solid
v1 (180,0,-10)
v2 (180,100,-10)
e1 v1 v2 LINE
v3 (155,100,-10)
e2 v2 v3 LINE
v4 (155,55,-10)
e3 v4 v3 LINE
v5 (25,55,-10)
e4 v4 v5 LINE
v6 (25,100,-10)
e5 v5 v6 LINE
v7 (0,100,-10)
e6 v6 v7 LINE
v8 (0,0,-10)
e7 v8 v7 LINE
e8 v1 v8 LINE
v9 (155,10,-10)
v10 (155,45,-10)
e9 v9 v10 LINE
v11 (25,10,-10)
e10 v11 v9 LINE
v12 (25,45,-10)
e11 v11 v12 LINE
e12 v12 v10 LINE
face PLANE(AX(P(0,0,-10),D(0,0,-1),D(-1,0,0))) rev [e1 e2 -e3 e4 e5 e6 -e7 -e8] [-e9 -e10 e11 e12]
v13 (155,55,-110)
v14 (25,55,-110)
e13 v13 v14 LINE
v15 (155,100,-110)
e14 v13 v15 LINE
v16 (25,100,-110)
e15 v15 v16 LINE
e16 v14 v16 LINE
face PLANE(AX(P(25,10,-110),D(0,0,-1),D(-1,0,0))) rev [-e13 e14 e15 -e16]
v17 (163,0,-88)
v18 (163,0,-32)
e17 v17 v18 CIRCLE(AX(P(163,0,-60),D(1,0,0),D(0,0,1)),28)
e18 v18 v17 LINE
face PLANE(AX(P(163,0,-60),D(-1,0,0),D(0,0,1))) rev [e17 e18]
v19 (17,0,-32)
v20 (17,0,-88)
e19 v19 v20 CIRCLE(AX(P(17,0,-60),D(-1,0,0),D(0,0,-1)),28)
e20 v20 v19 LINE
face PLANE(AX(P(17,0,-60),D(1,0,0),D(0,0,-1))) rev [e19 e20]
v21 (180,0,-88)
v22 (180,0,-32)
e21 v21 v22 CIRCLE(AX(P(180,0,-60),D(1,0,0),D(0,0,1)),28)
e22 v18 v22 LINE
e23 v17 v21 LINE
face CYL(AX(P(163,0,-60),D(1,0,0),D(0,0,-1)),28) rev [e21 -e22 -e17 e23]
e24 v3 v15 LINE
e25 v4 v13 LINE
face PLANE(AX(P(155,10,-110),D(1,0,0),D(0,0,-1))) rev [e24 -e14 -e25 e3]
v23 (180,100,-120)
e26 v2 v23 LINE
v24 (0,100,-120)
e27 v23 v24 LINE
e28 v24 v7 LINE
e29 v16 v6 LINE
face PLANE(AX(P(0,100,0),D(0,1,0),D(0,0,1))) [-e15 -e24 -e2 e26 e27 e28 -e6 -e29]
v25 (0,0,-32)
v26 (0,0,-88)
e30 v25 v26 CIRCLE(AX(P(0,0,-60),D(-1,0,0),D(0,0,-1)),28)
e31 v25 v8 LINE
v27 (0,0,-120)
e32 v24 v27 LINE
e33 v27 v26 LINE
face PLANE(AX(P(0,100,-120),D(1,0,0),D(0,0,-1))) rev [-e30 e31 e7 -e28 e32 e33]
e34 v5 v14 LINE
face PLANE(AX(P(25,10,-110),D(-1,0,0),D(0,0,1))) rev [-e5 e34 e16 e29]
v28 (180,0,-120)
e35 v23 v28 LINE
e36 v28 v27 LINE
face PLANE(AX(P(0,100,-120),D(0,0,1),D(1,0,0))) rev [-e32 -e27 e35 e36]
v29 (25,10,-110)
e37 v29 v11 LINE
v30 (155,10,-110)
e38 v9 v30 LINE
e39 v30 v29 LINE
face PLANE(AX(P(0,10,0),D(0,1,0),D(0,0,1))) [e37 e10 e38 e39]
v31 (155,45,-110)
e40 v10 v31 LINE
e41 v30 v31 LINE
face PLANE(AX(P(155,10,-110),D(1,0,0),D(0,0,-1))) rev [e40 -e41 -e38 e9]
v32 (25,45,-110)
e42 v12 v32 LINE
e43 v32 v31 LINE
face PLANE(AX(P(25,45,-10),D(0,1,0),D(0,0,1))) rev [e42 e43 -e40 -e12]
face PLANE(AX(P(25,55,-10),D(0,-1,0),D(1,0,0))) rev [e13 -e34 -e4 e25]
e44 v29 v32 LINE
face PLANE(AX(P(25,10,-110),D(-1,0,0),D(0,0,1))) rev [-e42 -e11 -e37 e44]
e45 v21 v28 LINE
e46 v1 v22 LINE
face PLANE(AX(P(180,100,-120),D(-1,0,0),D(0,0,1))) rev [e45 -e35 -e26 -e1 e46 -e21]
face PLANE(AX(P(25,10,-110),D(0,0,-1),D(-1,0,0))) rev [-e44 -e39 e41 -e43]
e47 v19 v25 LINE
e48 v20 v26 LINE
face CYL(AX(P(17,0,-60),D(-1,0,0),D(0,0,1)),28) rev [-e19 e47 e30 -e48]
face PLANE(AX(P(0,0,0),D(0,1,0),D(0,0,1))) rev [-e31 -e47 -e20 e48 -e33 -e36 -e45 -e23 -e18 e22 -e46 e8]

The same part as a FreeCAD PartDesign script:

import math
import FreeCAD as App
import Part
import Sketcher
from FreeCAD import Vector


def add_polygon(sketch, points):
    """Adds a closed chain of lines whose ends are joined by coincident constraints."""
    first, n = sketch.GeometryCount, len(points)
    for a, b in zip(points, points[1:] + points[:1]):
        sketch.addGeometry(Part.LineSegment(App.Vector(*a, 0), App.Vector(*b, 0)), False)
    for i in range(n):
        sketch.addConstraint(Sketcher.Constraint("Coincident", first + i, 2, first + (i + 1) % n, 1))

doc = App.newDocument("Part")
body = doc.addObject("PartDesign::Body", "Body")

# Sketch on XZ plane
sketch1 = body.newObject("Sketcher::SketchObject", "Sketch")
sketch1.AttachmentSupport = (doc.getObject("XZ_Plane"), [""])
sketch1.MapMode = "FlatFace"
add_polygon(sketch1, [(0, -120), (0, 0), (180, 0), (180, -120)])  # lines 0-3
sketch1.addConstraint(Sketcher.Constraint("Vertical", 0))
sketch1.addConstraint(Sketcher.Constraint("Horizontal", 1))
sketch1.addConstraint(Sketcher.Constraint("Vertical", 2))
sketch1.addConstraint(Sketcher.Constraint("Horizontal", 3))
sketch1.addConstraint(Sketcher.Constraint("Coincident", 0, 2, -1, 1))
sketch1.addConstraint(Sketcher.Constraint("DistanceX", 1, 1, 1, 2, 180.0))
sketch1.addConstraint(Sketcher.Constraint("DistanceY", 0, 1, 0, 2, 120.0))
pad1 = body.newObject("PartDesign::Pad", "Pad")
pad1.Profile = sketch1
pad1.Length = 100
pad1.Reversed = True

# Sketch on XZ plane
sketch2 = body.newObject("Sketcher::SketchObject", "Sketch001")
sketch2.AttachmentSupport = (doc.getObject("XZ_Plane"), [""])
sketch2.MapMode = "FlatFace"
sketch2.AttachmentOffset = App.Placement(Vector(0, 0, -100), App.Rotation())
add_polygon(sketch2, [(25, -110), (25, -10), (155, -10), (155, -110)])  # lines 0-3
sketch2.addConstraint(Sketcher.Constraint("Vertical", 0))
sketch2.addConstraint(Sketcher.Constraint("Horizontal", 1))
sketch2.addConstraint(Sketcher.Constraint("Vertical", 2))
sketch2.addConstraint(Sketcher.Constraint("Horizontal", 3))
sketch2.addConstraint(Sketcher.Constraint("DistanceX", 1, 1, 1, 2, 130.0))
sketch2.addConstraint(Sketcher.Constraint("DistanceY", 0, 1, 0, 2, 100.0))
sketch2.addConstraint(Sketcher.Constraint("DistanceX", -1, 1, 0, 2, 25.0))
sketch2.addConstraint(Sketcher.Constraint("DistanceY", 0, 2, -1, 1, 10.0))
pocket1 = body.newObject("PartDesign::Pocket", "Pocket")
pocket1.Profile = sketch2
pocket1.Length = 90
pocket1.Reversed = True

# Sketch on YZ plane
sketch3 = body.newObject("Sketcher::SketchObject", "Sketch002")
sketch3.AttachmentSupport = (doc.getObject("YZ_Plane"), [""])
sketch3.MapMode = "FlatFace"
sketch3.AttachmentOffset = App.Placement(Vector(0, 0, 180), App.Rotation())
sketch3.addGeometry(Part.LineSegment(Vector(0, -32, 0), Vector(0, -88, 0)), False)
sketch3.addGeometry(Part.ArcOfCircle(Part.Circle(Vector(0, -60, 0), Vector(0, 0, 1), 28), math.radians(-90), math.radians(90)), False)
sketch3.addConstraint(Sketcher.Constraint("Coincident", 0, 1, 1, 2))
sketch3.addConstraint(Sketcher.Constraint("Coincident", 1, 1, 0, 2))
sketch3.addConstraint(Sketcher.Constraint("Vertical", 0))
sketch3.addConstraint(Sketcher.Constraint("PointOnObject", 1, 3, -2))
sketch3.addConstraint(Sketcher.Constraint("PointOnObject", 0, 1, -2))
sketch3.addConstraint(Sketcher.Constraint("Radius", 1, 28.0))
sketch3.addConstraint(Sketcher.Constraint("DistanceY", 1, 3, -1, 1, 60.0))
pocket2 = body.newObject("PartDesign::Pocket", "Pocket001")
pocket2.Profile = sketch3
pocket2.Length = 17

# Sketch on YZ plane
sketch4 = body.newObject("Sketcher::SketchObject", "Sketch003")
sketch4.AttachmentSupport = (doc.getObject("YZ_Plane"), [""])
sketch4.MapMode = "FlatFace"
sketch4.addGeometry(Part.LineSegment(Vector(0, -88, 0), Vector(0, -32, 0)), False)
sketch4.addGeometry(Part.ArcOfCircle(Part.Circle(Vector(0, -60, 0), Vector(0, 0, 1), 28), math.radians(-90), math.radians(90)), False)
sketch4.addConstraint(Sketcher.Constraint("Coincident", 0, 1, 1, 1))
sketch4.addConstraint(Sketcher.Constraint("Coincident", 1, 2, 0, 2))
sketch4.addConstraint(Sketcher.Constraint("Vertical", 0))
sketch4.addConstraint(Sketcher.Constraint("PointOnObject", 1, 3, -2))
sketch4.addConstraint(Sketcher.Constraint("PointOnObject", 0, 1, -2))
sketch4.addConstraint(Sketcher.Constraint("Radius", 1, 28.0))
sketch4.addConstraint(Sketcher.Constraint("DistanceY", 1, 3, -1, 1, 60.0))
pocket3 = body.newObject("PartDesign::Pocket", "Pocket002")
pocket3.Profile = sketch4
pocket3.Length = 17
pocket3.Reversed = True

# Sketch on XZ plane
sketch5 = body.newObject("Sketcher::SketchObject", "Sketch004")
sketch5.AttachmentSupport = (doc.getObject("XZ_Plane"), [""])
sketch5.MapMode = "FlatFace"
add_polygon(sketch5, [(0, -10), (0, 0), (180, 0), (180, -10)])  # lines 0-3
sketch5.addConstraint(Sketcher.Constraint("Vertical", 0))
sketch5.addConstraint(Sketcher.Constraint("Horizontal", 1))
sketch5.addConstraint(Sketcher.Constraint("Vertical", 2))
sketch5.addConstraint(Sketcher.Constraint("Horizontal", 3))
sketch5.addConstraint(Sketcher.Constraint("Coincident", 0, 2, -1, 1))
sketch5.addConstraint(Sketcher.Constraint("DistanceX", 1, 1, 1, 2, 180.0))
sketch5.addConstraint(Sketcher.Constraint("DistanceY", 0, 1, 0, 2, 10.0))
pocket4 = body.newObject("PartDesign::Pocket", "Pocket003")
pocket4.Profile = sketch5
pocket4.Length = 100

# Sketch on XY plane
sketch6 = body.newObject("Sketcher::SketchObject", "Sketch005")
sketch6.AttachmentSupport = (doc.getObject("XY_Plane"), [""])
sketch6.MapMode = "FlatFace"
sketch6.AttachmentOffset = App.Placement(Vector(0, 0, -110), App.Rotation())
add_polygon(sketch6, [(25, 55), (25, 45), (155, 45), (155, 55)])  # lines 0-3
sketch6.addConstraint(Sketcher.Constraint("Vertical", 0))
sketch6.addConstraint(Sketcher.Constraint("Horizontal", 1))
sketch6.addConstraint(Sketcher.Constraint("Vertical", 2))
sketch6.addConstraint(Sketcher.Constraint("Horizontal", 3))
sketch6.addConstraint(Sketcher.Constraint("DistanceX", 1, 1, 1, 2, 130.0))
sketch6.addConstraint(Sketcher.Constraint("DistanceY", 0, 2, 0, 1, 10.0))
sketch6.addConstraint(Sketcher.Constraint("DistanceX", -1, 1, 0, 2, 25.0))
sketch6.addConstraint(Sketcher.Constraint("DistanceY", -1, 1, 0, 2, 45.0))
pad2 = body.newObject("PartDesign::Pad", "Pad001")
pad2.Profile = sketch6
pad2.Length = 100

doc.recompute()
